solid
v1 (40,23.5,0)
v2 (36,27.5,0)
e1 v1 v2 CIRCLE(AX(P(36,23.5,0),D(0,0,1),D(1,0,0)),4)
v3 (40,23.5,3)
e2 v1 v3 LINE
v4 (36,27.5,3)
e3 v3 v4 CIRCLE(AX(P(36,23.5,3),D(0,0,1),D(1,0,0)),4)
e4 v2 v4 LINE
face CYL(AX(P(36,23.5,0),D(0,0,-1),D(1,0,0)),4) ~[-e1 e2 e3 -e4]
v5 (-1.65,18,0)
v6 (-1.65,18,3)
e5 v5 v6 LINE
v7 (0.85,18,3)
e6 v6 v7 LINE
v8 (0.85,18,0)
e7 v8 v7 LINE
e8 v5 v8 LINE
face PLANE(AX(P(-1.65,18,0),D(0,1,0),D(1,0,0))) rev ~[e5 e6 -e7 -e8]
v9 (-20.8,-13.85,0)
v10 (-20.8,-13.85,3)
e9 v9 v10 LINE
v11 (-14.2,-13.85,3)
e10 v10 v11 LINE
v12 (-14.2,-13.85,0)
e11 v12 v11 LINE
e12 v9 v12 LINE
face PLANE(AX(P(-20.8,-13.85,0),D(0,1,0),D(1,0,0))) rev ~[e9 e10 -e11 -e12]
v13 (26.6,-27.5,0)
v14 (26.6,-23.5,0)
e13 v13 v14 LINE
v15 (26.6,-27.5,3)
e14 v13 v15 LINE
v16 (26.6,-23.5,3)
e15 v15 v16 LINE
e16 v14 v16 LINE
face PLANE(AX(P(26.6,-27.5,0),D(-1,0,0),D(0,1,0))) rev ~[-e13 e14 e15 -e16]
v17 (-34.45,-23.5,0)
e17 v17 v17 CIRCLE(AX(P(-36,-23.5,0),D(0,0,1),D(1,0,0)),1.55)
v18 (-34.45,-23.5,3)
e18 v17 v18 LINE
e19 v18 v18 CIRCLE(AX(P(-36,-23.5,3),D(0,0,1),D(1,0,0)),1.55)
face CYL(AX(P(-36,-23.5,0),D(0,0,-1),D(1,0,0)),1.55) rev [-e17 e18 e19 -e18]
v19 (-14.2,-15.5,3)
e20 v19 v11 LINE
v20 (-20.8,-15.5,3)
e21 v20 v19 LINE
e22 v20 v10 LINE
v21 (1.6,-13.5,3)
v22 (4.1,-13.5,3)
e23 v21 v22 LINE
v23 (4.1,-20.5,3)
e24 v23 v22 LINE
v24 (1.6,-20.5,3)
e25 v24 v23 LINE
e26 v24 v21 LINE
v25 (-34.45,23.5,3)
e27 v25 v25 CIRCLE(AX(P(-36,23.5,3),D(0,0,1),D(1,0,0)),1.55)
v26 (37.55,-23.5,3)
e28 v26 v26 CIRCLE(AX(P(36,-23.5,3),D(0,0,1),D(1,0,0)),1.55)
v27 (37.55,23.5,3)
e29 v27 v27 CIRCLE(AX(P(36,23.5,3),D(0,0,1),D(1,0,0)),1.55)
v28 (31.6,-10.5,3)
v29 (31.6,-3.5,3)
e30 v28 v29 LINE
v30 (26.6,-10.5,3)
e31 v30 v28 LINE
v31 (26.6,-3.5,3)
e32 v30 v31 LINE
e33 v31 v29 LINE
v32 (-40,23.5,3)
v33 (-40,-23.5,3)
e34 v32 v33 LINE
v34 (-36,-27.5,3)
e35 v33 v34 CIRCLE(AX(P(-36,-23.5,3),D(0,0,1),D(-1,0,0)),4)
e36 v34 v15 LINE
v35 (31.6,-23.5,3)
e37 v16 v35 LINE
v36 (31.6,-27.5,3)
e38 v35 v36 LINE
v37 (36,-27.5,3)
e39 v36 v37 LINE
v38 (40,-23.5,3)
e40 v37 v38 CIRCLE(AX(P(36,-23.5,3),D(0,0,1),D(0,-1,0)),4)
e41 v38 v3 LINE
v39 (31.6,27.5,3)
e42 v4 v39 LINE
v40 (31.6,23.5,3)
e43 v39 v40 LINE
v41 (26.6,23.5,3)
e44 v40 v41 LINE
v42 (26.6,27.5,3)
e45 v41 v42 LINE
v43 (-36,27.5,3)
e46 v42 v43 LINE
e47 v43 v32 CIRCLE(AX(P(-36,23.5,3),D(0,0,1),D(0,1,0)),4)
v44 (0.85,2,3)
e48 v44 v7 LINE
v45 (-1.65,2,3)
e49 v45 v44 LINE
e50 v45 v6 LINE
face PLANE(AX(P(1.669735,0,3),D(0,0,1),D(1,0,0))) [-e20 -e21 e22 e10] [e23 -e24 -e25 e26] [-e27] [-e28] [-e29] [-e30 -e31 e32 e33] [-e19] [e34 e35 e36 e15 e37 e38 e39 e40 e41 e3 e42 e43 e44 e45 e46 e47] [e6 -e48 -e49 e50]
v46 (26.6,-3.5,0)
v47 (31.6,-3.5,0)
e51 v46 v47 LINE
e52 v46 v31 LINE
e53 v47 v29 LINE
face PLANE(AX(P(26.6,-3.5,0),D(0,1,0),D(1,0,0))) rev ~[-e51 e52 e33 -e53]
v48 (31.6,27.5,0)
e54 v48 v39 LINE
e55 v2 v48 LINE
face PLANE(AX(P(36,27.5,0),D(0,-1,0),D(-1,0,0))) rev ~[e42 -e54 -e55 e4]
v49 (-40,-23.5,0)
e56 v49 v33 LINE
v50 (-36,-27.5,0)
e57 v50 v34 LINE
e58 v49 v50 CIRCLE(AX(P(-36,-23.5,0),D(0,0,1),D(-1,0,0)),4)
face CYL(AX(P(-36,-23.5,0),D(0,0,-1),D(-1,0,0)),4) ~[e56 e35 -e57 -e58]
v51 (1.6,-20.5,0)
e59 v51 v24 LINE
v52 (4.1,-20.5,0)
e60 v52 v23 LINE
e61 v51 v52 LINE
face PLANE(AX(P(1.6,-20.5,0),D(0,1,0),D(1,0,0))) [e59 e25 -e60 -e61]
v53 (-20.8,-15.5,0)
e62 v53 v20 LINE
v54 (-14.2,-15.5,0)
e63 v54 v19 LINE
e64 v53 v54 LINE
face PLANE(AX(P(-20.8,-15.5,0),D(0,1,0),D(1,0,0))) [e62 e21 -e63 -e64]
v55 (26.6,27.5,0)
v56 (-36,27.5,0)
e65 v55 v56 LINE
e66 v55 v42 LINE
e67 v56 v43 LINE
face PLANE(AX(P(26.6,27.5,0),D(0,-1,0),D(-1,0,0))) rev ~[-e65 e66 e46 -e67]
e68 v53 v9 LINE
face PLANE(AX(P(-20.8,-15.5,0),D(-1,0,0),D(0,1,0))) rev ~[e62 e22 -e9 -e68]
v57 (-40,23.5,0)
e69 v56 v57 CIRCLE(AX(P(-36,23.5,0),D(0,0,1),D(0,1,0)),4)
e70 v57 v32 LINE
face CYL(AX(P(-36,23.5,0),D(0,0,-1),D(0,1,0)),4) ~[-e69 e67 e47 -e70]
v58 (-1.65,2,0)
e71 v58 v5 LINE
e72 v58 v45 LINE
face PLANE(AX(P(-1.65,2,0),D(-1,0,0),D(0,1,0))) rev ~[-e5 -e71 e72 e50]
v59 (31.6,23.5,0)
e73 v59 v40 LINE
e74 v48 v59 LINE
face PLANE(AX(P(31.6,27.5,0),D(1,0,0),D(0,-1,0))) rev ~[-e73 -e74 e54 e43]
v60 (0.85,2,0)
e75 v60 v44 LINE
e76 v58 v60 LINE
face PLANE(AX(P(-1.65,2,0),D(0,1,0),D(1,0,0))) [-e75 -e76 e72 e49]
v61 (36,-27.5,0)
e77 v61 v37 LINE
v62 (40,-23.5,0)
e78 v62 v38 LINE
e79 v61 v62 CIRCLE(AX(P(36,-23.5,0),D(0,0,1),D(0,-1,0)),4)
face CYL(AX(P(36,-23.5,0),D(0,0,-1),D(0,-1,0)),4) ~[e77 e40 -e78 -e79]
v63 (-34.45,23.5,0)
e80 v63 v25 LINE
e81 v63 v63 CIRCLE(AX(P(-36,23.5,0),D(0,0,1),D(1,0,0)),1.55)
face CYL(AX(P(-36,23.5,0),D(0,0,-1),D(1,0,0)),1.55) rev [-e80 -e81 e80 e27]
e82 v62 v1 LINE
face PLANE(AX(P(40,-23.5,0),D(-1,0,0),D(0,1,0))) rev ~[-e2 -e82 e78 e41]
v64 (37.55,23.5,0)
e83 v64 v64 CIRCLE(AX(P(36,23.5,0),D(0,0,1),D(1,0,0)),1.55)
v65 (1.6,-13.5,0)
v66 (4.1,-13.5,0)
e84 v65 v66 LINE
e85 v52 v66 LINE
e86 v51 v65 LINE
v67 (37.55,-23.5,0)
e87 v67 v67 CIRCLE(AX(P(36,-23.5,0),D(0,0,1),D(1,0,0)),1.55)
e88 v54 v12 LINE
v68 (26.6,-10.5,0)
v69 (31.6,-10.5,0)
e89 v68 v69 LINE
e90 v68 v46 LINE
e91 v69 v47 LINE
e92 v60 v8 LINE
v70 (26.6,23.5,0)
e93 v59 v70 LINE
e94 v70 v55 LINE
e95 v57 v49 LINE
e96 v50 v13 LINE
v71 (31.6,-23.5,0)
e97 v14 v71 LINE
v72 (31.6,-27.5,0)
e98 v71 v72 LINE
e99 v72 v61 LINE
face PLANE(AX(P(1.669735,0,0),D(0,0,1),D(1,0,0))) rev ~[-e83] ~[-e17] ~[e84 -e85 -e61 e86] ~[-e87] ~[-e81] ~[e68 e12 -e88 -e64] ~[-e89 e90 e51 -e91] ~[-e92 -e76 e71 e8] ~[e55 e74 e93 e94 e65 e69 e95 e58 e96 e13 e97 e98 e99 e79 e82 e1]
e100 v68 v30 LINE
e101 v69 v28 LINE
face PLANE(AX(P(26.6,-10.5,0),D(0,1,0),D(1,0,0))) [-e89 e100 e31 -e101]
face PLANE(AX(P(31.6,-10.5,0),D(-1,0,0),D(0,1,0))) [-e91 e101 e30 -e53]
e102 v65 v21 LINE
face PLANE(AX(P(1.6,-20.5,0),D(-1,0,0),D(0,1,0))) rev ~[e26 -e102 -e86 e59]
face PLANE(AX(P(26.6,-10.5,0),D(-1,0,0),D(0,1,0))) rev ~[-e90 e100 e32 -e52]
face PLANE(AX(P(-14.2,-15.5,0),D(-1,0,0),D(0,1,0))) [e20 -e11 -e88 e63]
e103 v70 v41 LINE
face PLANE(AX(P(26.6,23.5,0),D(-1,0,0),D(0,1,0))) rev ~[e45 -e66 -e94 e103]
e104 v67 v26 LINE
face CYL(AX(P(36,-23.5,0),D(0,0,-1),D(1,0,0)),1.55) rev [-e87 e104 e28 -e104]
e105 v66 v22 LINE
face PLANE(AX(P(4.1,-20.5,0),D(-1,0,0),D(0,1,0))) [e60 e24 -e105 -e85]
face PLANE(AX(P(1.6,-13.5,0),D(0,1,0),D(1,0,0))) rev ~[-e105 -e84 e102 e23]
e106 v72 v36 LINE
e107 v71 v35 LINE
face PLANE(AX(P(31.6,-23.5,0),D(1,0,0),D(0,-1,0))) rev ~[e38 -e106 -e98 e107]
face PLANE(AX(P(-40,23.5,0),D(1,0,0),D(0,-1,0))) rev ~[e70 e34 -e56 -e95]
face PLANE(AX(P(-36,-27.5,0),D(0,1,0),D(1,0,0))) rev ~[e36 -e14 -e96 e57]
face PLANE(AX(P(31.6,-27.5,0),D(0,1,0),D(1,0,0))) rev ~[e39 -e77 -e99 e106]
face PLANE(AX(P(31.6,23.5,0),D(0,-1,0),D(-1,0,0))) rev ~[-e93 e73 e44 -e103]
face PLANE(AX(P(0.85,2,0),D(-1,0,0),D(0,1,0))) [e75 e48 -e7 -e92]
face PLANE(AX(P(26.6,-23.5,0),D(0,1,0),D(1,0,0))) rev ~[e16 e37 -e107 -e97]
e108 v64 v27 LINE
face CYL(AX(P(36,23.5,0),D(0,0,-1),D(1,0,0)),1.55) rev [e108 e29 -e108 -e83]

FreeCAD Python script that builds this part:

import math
import FreeCAD as App
import Part
import Sketcher
Q = App.Units.Quantity


def add_polygon(sketch, points):
    """Adds a closed chain of lines whose ends are joined by coincident constraints."""
    first, n = sketch.GeometryCount, len(points)
    for a, b in zip(points, points[1:] + points[:1]):
        sketch.addGeometry(Part.LineSegment(App.Vector(*a, 0), App.Vector(*b, 0)), False)
    for i in range(n):
        sketch.addConstraint(Sketcher.Constraint("Coincident", first + i, 2, first + (i + 1) % n, 1))

doc = App.newDocument("Part")
body = doc.addObject("PartDesign::Body", "Body")

sketch1 = body.newObject("Sketcher::SketchObject", "Sketch")
sketch1.AttachmentSupport = (doc.getObject("XY_Plane"), [""])
sketch1.MapMode = "FlatFace"
sketch1.addGeometry(Part.LineSegment(App.Vector(26.6, 27.5, 0), App.Vector(-36, 27.5, 0)), False)
sketch1.addGeometry(Part.ArcOfCircle(Part.Circle(App.Vector(-36, 23.5, 0), App.Vector(0, 0, 1), 4), math.radians(90), math.radians(180)), False)
sketch1.addGeometry(Part.LineSegment(App.Vector(-40, 23.5, 0), App.Vector(-40, -23.5, 0)), False)
sketch1.addGeometry(Part.ArcOfCircle(Part.Circle(App.Vector(-36, -23.5, 0), App.Vector(0, 0, 1), 4), math.radians(180), math.radians(270)), False)
sketch1.addGeometry(Part.LineSegment(App.Vector(-36, -27.5, 0), App.Vector(26.6, -27.5, 0)), False)
sketch1.addGeometry(Part.LineSegment(App.Vector(26.6, -27.5, 0), App.Vector(26.6, -23.5, 0)), False)
sketch1.addGeometry(Part.LineSegment(App.Vector(26.6, -23.5, 0), App.Vector(31.6, -23.5, 0)), False)
sketch1.addGeometry(Part.LineSegment(App.Vector(31.6, -23.5, 0), App.Vector(31.6, -27.5, 0)), False)
sketch1.addGeometry(Part.LineSegment(App.Vector(31.6, -27.5, 0), App.Vector(36, -27.5, 0)), False)
sketch1.addGeometry(Part.ArcOfCircle(Part.Circle(App.Vector(36, -23.5, 0), App.Vector(0, 0, 1), 4), math.radians(-90), math.radians(0)), False)
sketch1.addGeometry(Part.LineSegment(App.Vector(40, -23.5, 0), App.Vector(40, 23.5, 0)), False)
sketch1.addGeometry(Part.ArcOfCircle(Part.Circle(App.Vector(36, 23.5, 0), App.Vector(0, 0, 1), 4), math.radians(0), math.radians(90)), False)
sketch1.addGeometry(Part.LineSegment(App.Vector(36, 27.5, 0), App.Vector(31.6, 27.5, 0)), False)
sketch1.addGeometry(Part.LineSegment(App.Vector(31.6, 27.5, 0), App.Vector(31.6, 23.5, 0)), False)
sketch1.addGeometry(Part.LineSegment(App.Vector(31.6, 23.5, 0), App.Vector(26.6, 23.5, 0)), False)
sketch1.addGeometry(Part.LineSegment(App.Vector(26.6, 23.5, 0), App.Vector(26.6, 27.5, 0)), False)
sketch1.addGeometry(Part.Circle(App.Vector(-36, -23.5, 0), App.Vector(0, 0, 1), 1.6), False)
add_polygon(sketch1, [(-14.2, -15.5), (-20.8, -15.5), (-20.8, -13.8), (-14.2, -13.8)])
add_polygon(sketch1, [(4.1, -20.5), (1.6, -20.5), (1.6, -13.5), (4.1, -13.5)])
sketch1.addGeometry(Part.Circle(App.Vector(36, -23.5, 0), App.Vector(0, 0, 1), 1.6), False)
add_polygon(sketch1, [(31.6, -10.5), (26.6, -10.5), (26.6, -3.5), (31.6, -3.5)])
add_polygon(sketch1, [(0.8, 2), (-1.6, 2), (-1.6, 18), (0.8, 18)])
sketch1.addGeometry(Part.Circle(App.Vector(-36, 23.5, 0), App.Vector(0, 0, 1), 1.6), False)
sketch1.addGeometry(Part.Circle(App.Vector(36, 23.5, 0), App.Vector(0, 0, 1), 1.6), False)
sketch1.addConstraint([
    Sketcher.Constraint("Tangent", 0, 2, 1, 1),
    Sketcher.Constraint("Tangent", 1, 2, 2, 1),
    Sketcher.Constraint("Tangent", 2, 2, 3, 1),
    Sketcher.Constraint("Tangent", 3, 2, 4, 1),
    Sketcher.Constraint("Coincident", 4, 2, 5, 1),
    Sketcher.Constraint("Coincident", 5, 2, 6, 1),
    Sketcher.Constraint("Coincident", 6, 2, 7, 1),
    Sketcher.Constraint("Coincident", 7, 2, 8, 1),
    Sketcher.Constraint("Tangent", 8, 2, 9, 1),
    Sketcher.Constraint("Tangent", 9, 2, 10, 1),
    Sketcher.Constraint("Tangent", 10, 2, 11, 1),
    Sketcher.Constraint("Tangent", 11, 2, 12, 1),
    Sketcher.Constraint("Coincident", 12, 2, 13, 1),
    Sketcher.Constraint("Coincident", 13, 2, 14, 1),
    Sketcher.Constraint("Coincident", 14, 2, 15, 1),
    Sketcher.Constraint("Coincident", 15, 2, 0, 1),
    Sketcher.Constraint("Horizontal", 0),
    Sketcher.Constraint("Vertical", 2),
    Sketcher.Constraint("Horizontal", 4),
    Sketcher.Constraint("Vertical", 5),
    Sketcher.Constraint("Horizontal", 6),
    Sketcher.Constraint("Vertical", 7),
    Sketcher.Constraint("Horizontal", 8),
    Sketcher.Constraint("Vertical", 10),
    Sketcher.Constraint("Horizontal", 12),
    Sketcher.Constraint("Vertical", 13),
    Sketcher.Constraint("Horizontal", 14),
    Sketcher.Constraint("Vertical", 15),
    Sketcher.Constraint("Horizontal", 17),
    Sketcher.Constraint("Vertical", 18),
    Sketcher.Constraint("Horizontal", 19),
    Sketcher.Constraint("Vertical", 20),
    Sketcher.Constraint("Horizontal", 21),
    Sketcher.Constraint("Vertical", 22),
    Sketcher.Constraint("Horizontal", 23),
    Sketcher.Constraint("Vertical", 24),
    Sketcher.Constraint("Horizontal", 26),
    Sketcher.Constraint("Vertical", 27),
    Sketcher.Constraint("Horizontal", 28),
    Sketcher.Constraint("Vertical", 29),
    Sketcher.Constraint("Horizontal", 30),
    Sketcher.Constraint("Vertical", 31),
    Sketcher.Constraint("Horizontal", 32),
    Sketcher.Constraint("Vertical", 33),
    Sketcher.Constraint("Coincident", 16, 3, 3, 3),
    Sketcher.Constraint("Coincident", 25, 3, 9, 3),
    Sketcher.Constraint("Coincident", 34, 3, 1, 3),
    Sketcher.Constraint("Coincident", 35, 3, 11, 3),
    Sketcher.Constraint("Equal", 1, 3),
    Sketcher.Constraint("Equal", 3, 9),
    Sketcher.Constraint("Equal", 9, 11),
    Sketcher.Constraint("Equal", 16, 25),
    Sketcher.Constraint("Equal", 25, 34),
    Sketcher.Constraint("Equal", 34, 35),
    Sketcher.Constraint("Symmetric", 1, 3, 9, 3, -1, 1),
    Sketcher.Constraint("Symmetric", 7, 2, 12, 2, -1),
    Sketcher.Constraint("Symmetric", 5, 2, 14, 2, -1),
    Sketcher.Constraint("Horizontal", 3, 3, 9, 3),
    Sketcher.Constraint("Horizontal", 2, 2, 5, 2),
    Sketcher.Constraint("Vertical", 15, 2, 26, 2),
    Sketcher.Constraint("Vertical", 13, 2, 28, 2),
    Sketcher.Constraint("Equal", 23, 30),
    Sketcher.Constraint("Equal", 24, 27),
    Sketcher.Constraint("Radius", 1, Q("4 mm")),
    Sketcher.Constraint("Diameter", 16, Q("3.1 mm")),
    Sketcher.Constraint("DistanceX", 6, 1, 6, 2, Q("5 mm")),
    Sketcher.Constraint("DistanceY", 2, 2, 2, 1, Q("47 mm")),
    Sketcher.Constraint("DistanceY", 22, 1, 22, 2, Q("7 mm")),
    Sketcher.Constraint("DistanceY", 31, 1, 31, 2, Q("16 mm")),
    Sketcher.Constraint("DistanceX", 0, 2, 0, 1, Q("62.6 mm")),
    Sketcher.Constraint("DistanceX", 8, 1, 8, 2, Q("4.4 mm")),
    Sketcher.Constraint("DistanceX", 17, 2, 17, 1, Q("6.6 mm")),
    Sketcher.Constraint("DistanceX", 21, 2, 21, 1, Q("2.5 mm")),
    Sketcher.Constraint("DistanceY", -1, 1, 30, 2, Q("2 mm")),
    Sketcher.Constraint("DistanceY", 16, 3, 17, 2, Q("8 mm")),
    Sketcher.Constraint("DistanceY", 21, 2, 20, 2, Q("5 mm")),
    Sketcher.Constraint("DistanceX", 21, 2, 5, 2, Q("25 mm")),
    Sketcher.Constraint("DistanceY", 5, 2, 26, 2, Q("13 mm")),
    Sketcher.Constraint("DistanceY", 18, 1, 18, 2, Q("1.65 mm")),
    Sketcher.Constraint("DistanceX", 17, 2, -1, 1, Q("20.8 mm")),
    Sketcher.Constraint("DistanceX", 30, 2, -1, 1, Q("1.65 mm")),
])
pad1 = body.newObject("PartDesign::Pad", "Pad")
pad1.Profile = sketch1
pad1.Length = 3

doc.recompute()
